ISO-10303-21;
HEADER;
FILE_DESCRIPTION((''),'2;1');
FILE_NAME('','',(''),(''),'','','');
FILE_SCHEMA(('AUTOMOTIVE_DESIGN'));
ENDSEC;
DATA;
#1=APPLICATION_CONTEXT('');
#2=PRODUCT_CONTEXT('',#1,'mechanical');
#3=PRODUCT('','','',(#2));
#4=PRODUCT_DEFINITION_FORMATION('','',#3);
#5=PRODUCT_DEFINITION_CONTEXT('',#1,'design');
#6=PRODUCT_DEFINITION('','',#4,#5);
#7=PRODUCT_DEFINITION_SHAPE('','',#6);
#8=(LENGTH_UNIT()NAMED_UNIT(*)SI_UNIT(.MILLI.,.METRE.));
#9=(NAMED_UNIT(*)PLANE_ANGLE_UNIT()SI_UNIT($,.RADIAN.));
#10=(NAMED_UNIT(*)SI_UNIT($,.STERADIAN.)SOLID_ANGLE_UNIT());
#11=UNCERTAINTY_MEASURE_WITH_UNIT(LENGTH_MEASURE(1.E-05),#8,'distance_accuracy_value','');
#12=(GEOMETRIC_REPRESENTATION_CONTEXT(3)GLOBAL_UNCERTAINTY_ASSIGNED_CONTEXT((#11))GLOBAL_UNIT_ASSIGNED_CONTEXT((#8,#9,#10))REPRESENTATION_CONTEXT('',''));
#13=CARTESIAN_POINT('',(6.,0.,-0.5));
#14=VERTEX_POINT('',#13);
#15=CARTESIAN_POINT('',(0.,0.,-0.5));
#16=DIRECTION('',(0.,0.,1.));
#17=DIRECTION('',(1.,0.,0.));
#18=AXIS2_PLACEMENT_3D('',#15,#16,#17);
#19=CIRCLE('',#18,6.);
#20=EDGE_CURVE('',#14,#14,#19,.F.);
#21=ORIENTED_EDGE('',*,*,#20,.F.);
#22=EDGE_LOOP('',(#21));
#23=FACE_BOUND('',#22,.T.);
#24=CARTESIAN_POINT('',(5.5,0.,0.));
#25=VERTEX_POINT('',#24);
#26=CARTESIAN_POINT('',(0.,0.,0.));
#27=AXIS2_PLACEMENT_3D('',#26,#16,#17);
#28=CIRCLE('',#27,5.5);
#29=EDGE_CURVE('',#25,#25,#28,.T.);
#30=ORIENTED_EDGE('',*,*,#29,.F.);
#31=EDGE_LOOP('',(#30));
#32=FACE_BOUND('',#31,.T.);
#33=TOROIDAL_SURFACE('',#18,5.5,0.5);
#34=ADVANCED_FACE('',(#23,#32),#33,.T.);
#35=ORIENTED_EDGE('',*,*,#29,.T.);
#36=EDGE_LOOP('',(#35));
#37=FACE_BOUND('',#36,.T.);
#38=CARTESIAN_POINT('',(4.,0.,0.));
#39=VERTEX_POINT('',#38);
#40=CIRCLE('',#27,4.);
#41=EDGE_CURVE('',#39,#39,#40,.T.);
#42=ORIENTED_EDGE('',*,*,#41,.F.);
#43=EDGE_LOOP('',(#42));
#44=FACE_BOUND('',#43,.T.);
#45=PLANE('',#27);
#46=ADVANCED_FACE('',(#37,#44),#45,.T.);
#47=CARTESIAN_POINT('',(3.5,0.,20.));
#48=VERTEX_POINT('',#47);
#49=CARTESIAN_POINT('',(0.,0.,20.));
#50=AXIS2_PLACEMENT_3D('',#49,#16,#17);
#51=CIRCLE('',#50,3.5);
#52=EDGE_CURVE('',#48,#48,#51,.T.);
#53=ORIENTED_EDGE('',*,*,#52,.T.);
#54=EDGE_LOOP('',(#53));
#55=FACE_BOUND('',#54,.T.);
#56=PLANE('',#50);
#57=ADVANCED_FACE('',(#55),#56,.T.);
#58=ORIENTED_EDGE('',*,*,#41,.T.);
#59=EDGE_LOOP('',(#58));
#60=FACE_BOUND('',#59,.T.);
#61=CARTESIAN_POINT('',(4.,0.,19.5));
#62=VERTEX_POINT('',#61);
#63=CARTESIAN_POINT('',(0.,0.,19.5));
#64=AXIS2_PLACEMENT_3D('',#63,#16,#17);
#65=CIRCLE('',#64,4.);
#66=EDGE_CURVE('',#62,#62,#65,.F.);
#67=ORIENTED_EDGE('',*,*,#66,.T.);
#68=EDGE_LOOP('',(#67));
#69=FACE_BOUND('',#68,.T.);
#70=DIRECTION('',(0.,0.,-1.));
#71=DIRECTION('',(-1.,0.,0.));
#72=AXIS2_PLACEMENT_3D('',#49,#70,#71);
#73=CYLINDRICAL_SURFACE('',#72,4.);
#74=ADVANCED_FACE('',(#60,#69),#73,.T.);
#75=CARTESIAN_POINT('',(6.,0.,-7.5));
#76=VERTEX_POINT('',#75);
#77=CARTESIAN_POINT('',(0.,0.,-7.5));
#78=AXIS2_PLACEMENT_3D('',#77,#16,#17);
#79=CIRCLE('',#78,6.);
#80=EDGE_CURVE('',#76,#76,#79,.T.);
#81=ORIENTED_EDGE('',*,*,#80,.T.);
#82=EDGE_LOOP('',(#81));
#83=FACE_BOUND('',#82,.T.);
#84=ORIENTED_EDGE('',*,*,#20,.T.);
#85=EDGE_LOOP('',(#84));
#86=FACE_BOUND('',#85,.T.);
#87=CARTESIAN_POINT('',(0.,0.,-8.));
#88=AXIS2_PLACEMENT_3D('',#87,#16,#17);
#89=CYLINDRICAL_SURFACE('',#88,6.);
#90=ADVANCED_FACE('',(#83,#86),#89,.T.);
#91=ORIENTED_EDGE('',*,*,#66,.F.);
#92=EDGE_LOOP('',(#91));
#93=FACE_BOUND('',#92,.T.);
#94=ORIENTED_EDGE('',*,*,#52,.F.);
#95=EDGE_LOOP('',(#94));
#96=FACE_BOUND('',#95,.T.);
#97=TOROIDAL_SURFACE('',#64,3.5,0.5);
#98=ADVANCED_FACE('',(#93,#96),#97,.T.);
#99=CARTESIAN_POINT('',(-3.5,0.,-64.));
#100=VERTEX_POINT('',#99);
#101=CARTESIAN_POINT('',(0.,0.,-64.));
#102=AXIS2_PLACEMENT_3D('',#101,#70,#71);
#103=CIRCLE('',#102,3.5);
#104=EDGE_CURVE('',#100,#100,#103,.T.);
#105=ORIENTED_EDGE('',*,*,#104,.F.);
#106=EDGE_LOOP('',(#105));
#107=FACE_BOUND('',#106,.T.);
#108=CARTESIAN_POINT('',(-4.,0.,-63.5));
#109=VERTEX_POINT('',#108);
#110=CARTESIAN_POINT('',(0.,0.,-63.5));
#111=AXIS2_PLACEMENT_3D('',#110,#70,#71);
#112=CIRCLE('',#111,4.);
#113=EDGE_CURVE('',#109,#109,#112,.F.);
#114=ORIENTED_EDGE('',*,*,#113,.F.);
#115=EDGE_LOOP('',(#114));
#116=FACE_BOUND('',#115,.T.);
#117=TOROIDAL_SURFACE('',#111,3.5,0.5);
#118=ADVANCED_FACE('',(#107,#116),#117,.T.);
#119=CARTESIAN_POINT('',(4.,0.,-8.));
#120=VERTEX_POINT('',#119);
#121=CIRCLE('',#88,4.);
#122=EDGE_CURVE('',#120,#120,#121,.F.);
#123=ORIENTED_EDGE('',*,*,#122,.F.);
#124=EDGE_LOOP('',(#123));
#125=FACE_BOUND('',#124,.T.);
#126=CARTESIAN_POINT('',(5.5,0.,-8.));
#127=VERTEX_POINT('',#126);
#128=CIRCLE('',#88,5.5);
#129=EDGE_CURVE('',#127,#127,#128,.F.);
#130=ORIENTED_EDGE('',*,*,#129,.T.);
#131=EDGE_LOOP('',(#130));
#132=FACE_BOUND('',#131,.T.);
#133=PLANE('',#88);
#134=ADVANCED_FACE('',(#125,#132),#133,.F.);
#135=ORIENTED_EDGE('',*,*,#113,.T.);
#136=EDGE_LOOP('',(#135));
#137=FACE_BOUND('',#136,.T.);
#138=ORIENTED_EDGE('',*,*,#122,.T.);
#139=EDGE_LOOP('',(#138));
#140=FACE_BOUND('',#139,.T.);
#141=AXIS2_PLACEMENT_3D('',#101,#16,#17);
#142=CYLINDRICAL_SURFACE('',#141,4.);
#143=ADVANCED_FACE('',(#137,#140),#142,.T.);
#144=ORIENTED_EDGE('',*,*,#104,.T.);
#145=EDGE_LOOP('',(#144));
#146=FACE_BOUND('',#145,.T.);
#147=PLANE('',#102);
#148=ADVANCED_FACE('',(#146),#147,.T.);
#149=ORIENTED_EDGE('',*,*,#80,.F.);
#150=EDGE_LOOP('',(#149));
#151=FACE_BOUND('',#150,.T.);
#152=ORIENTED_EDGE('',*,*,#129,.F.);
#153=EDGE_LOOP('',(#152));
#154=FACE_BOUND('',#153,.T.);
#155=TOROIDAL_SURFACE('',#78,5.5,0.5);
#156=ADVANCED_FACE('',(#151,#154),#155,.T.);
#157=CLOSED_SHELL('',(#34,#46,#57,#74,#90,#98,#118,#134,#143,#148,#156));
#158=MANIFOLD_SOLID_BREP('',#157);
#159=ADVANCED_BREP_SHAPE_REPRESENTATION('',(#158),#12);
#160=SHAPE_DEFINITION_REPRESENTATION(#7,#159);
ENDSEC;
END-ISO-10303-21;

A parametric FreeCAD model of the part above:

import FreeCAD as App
import Part
import Sketcher

V = App.Vector
Q = App.Units.Quantity


def edges_at(feature, points):
    """Names of the edges that pass closest to the given points."""
    edges = feature.Shape.Edges
    near = lambda p: min(range(len(edges)), key=lambda i: edges[i].distToShape(Part.Vertex(*p))[0])
    return sorted({f"Edge{near(p) + 1}" for p in points})

doc = App.newDocument("Part")
body = doc.addObject("PartDesign::Body", "Body")

# Sketch on XY plane
sketch1 = doc.addObject("Sketcher::SketchObject", "Sketch")
body.addObject(sketch1)
sketch1.AttachmentSupport = (doc.XY_Plane, [""])
sketch1.MapMode = "FlatFace"
sketch1.addGeometry(Part.Circle(V(0, 0, 0), V(0, 0, 1), 4), False)
sketch1.addConstraint([
    Sketcher.Constraint("Coincident", 0, 3, -1, 1),
    Sketcher.Constraint("Diameter", 0, Q("8 mm")),
])
pad1 = doc.addObject("PartDesign::Pad", "Pad")
body.addObject(pad1)
pad1.Profile = sketch1
pad1.Length = 20

# Sketch on XY plane
sketch2 = doc.addObject("Sketcher::SketchObject", "Sketch001")
body.addObject(sketch2)
sketch2.AttachmentSupport = (doc.XY_Plane, [""])
sketch2.MapMode = "FlatFace"
sketch2.addGeometry(Part.Circle(V(0, 0, 0), V(0, 0, 1), 6), False)
sketch2.addConstraint([
    Sketcher.Constraint("Coincident", 0, 3, -1, 1),
    Sketcher.Constraint("Diameter", 0, Q("12 mm")),
])
pad2 = doc.addObject("PartDesign::Pad", "Pad001")
body.addObject(pad2)
pad2.Profile = sketch2
pad2.Length = 8
pad2.Reversed = True

# Sketch on XY plane
sketch3 = doc.addObject("Sketcher::SketchObject", "Sketch002")
body.addObject(sketch3)
sketch3.AttachmentSupport = (doc.XY_Plane, [""])
sketch3.MapMode = "FlatFace"
sketch3.AttachmentOffset = App.Placement(V(0, 0, -64), App.Rotation())
sketch3.addGeometry(Part.Circle(V(0, 0, 0), V(0, 0, 1), 4), False)
sketch3.addConstraint([
    Sketcher.Constraint("Coincident", 0, 3, -1, 1),
    Sketcher.Constraint("Diameter", 0, Q("8 mm")),
])
pad3 = doc.addObject("PartDesign::Pad", "Pad002")
body.addObject(pad3)
pad3.Profile = sketch3
pad3.Length = 56
doc.recompute()

fillet = doc.addObject("PartDesign::Fillet", "Fillet")
body.addObject(fillet)
fillet.Base = (pad3, edges_at(pad3, [(-4, 0, 20)]))
fillet.Radius = 0.5
doc.recompute()

fillet2 = doc.addObject("PartDesign::Fillet", "Fillet001")
body.addObject(fillet2)
fillet2.Base = (fillet, edges_at(fillet, [(-4, 0, -64), (-6, 0, 0), (-6, 0, -8)]))
fillet2.Radius = 0.5

doc.recompute()
